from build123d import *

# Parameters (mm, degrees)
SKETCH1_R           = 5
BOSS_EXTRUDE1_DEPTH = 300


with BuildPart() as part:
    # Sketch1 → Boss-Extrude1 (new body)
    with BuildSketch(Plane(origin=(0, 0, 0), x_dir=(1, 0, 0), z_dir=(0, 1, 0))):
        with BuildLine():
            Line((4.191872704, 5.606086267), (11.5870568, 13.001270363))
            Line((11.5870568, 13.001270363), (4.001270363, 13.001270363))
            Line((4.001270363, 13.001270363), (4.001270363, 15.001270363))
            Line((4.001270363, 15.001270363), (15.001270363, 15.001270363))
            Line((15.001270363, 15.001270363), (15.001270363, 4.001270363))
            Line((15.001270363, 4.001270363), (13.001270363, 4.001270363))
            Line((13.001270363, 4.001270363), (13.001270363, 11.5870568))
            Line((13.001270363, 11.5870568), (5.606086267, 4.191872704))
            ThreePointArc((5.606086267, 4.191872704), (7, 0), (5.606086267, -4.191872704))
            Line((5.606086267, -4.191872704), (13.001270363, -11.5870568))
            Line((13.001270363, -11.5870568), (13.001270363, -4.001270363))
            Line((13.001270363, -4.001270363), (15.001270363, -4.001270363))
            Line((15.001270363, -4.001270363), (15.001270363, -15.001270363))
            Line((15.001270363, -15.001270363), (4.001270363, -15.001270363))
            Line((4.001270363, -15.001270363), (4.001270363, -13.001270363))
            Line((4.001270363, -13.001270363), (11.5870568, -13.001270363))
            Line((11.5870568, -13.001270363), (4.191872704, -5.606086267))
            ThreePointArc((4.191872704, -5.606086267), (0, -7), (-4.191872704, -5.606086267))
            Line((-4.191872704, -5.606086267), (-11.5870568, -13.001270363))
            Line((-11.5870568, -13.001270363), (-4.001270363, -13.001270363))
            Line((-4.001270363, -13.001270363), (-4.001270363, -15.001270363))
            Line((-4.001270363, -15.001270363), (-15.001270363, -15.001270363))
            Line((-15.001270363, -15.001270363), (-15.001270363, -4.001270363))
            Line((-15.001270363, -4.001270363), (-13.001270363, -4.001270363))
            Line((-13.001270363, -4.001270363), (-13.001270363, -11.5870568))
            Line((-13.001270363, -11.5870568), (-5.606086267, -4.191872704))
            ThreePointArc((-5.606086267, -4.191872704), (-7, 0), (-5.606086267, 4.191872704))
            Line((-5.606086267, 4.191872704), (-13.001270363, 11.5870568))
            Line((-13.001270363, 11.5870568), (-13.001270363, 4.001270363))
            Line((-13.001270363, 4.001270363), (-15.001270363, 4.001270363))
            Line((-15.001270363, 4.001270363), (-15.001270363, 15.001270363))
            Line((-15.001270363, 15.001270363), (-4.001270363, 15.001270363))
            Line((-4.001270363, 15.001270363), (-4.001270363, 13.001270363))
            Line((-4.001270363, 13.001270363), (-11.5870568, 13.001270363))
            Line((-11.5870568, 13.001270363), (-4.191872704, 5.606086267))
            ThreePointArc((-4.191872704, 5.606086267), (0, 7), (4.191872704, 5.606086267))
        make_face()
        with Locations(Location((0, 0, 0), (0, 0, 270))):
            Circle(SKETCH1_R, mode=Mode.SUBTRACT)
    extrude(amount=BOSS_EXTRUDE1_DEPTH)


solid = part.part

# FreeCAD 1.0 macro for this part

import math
import FreeCAD as App
import Part
import Sketcher

V = App.Vector
Q = App.Units.Quantity

doc = App.newDocument("Part")
body = doc.addObject("PartDesign::Body", "Body")

sketch1 = body.newObject("Sketcher::SketchObject", "Sketch")
sketch1.AttachmentSupport = (doc.getObject("XZ_Plane"), [""])
sketch1.MapMode = "FlatFace"
sketch1.addGeometry(Part.LineSegment(V(11.6, -13, 0), V(4.2, -5.6, 0)), False)
sketch1.addGeometry(Part.ArcOfCircle(Part.Circle(V(0, 0, 0), V(0, 0, 1), 7), math.radians(-127), math.radians(-53)), False)
sketch1.addGeometry(Part.LineSegment(V(-4.2, -5.6, 0), V(-11.6, -13, 0)), False)
sketch1.addGeometry(Part.LineSegment(V(-11.6, -13, 0), V(-4, -13, 0)), False)
sketch1.addGeometry(Part.LineSegment(V(-4, -13, 0), V(-4, -15, 0)), False)
sketch1.addGeometry(Part.LineSegment(V(-4, -15, 0), V(-15, -15, 0)), False)
sketch1.addGeometry(Part.LineSegment(V(-15, -15, 0), V(-15, -4, 0)), False)
sketch1.addGeometry(Part.LineSegment(V(-15, -4, 0), V(-13, -4, 0)), False)
sketch1.addGeometry(Part.LineSegment(V(-13, -4, 0), V(-13, -11.6, 0)), False)
sketch1.addGeometry(Part.LineSegment(V(-13, -11.6, 0), V(-5.6, -4.2, 0)), False)
sketch1.addGeometry(Part.ArcOfCircle(Part.Circle(V(0, 0, 0), V(0, 0, 1), 7), math.radians(143), math.radians(217)), False)
sketch1.addGeometry(Part.LineSegment(V(-5.6, 4.2, 0), V(-13, 11.6, 0)), False)
sketch1.addGeometry(Part.LineSegment(V(-13, 11.6, 0), V(-13, 4, 0)), False)
sketch1.addGeometry(Part.LineSegment(V(-13, 4, 0), V(-15, 4, 0)), False)
sketch1.addGeometry(Part.LineSegment(V(-15, 4, 0), V(-15, 15, 0)), False)
sketch1.addGeometry(Part.LineSegment(V(-15, 15, 0), V(-4, 15, 0)), False)
sketch1.addGeometry(Part.LineSegment(V(-4, 15, 0), V(-4, 13, 0)), False)
sketch1.addGeometry(Part.LineSegment(V(-4, 13, 0), V(-11.6, 13, 0)), False)
sketch1.addGeometry(Part.LineSegment(V(-11.6, 13, 0), V(-4.2, 5.6, 0)), False)
sketch1.addGeometry(Part.ArcOfCircle(Part.Circle(V(0, 0, 0), V(0, 0, 1), 7), math.radians(53), math.radians(127)), False)
sketch1.addGeometry(Part.LineSegment(V(4.2, 5.6, 0), V(11.6, 13, 0)), False)
sketch1.addGeometry(Part.LineSegment(V(11.6, 13, 0), V(4, 13, 0)), False)
sketch1.addGeometry(Part.LineSegment(V(4, 13, 0), V(4, 15, 0)), False)
sketch1.addGeometry(Part.LineSegment(V(4, 15, 0), V(15, 15, 0)), False)
sketch1.addGeometry(Part.LineSegment(V(15, 15, 0), V(15, 4, 0)), False)
sketch1.addGeometry(Part.LineSegment(V(15, 4, 0), V(13, 4, 0)), False)
sketch1.addGeometry(Part.LineSegment(V(13, 4, 0), V(13, 11.6, 0)), False)
sketch1.addGeometry(Part.LineSegment(V(13, 11.6, 0), V(5.6, 4.2, 0)), False)
sketch1.addGeometry(Part.ArcOfCircle(Part.Circle(V(0, 0, 0), V(0, 0, 1), 7), math.radians(-37), math.radians(37)), False)
sketch1.addGeometry(Part.LineSegment(V(5.6, -4.2, 0), V(13, -11.6, 0)), False)
sketch1.addGeometry(Part.LineSegment(V(13, -11.6, 0), V(13, -4, 0)), False)
sketch1.addGeometry(Part.LineSegment(V(13, -4, 0), V(15, -4, 0)), False)
sketch1.addGeometry(Part.LineSegment(V(15, -4, 0), V(15, -15, 0)), False)
sketch1.addGeometry(Part.LineSegment(V(15, -15, 0), V(4, -15, 0)), False)
sketch1.addGeometry(Part.LineSegment(V(4, -15, 0), V(4, -13, 0)), False)
sketch1.addGeometry(Part.LineSegment(V(4, -13, 0), V(11.6, -13, 0)), False)
sketch1.addGeometry(Part.Circle(V(0, 0, 0), V(0, 0, 1), 5), False)
sketch1.addConstraint(Sketcher.Constraint("Coincident", 0, 2, 1, 2))
sketch1.addConstraint(Sketcher.Constraint("Coincident", 1, 1, 2, 1))
sketch1.addConstraint(Sketcher.Constraint("Coincident", 2, 2, 3, 1))
sketch1.addConstraint(Sketcher.Constraint("Coincident", 3, 2, 4, 1))
sketch1.addConstraint(Sketcher.Constraint("Coincident", 4, 2, 5, 1))
sketch1.addConstraint(Sketcher.Constraint("Coincident", 5, 2, 6, 1))
sketch1.addConstraint(Sketcher.Constraint("Coincident", 6, 2, 7, 1))
sketch1.addConstraint(Sketcher.Constraint("Coincident", 7, 2, 8, 1))
sketch1.addConstraint(Sketcher.Constraint("Coincident", 8, 2, 9, 1))
sketch1.addConstraint(Sketcher.Constraint("Coincident", 9, 2, 10, 2))
sketch1.addConstraint(Sketcher.Constraint("Coincident", 10, 1, 11, 1))
sketch1.addConstraint(Sketcher.Constraint("Coincident", 11, 2, 12, 1))
sketch1.addConstraint(Sketcher.Constraint("Coincident", 12, 2, 13, 1))
sketch1.addConstraint(Sketcher.Constraint("Coincident", 13, 2, 14, 1))
sketch1.addConstraint(Sketcher.Constraint("Coincident", 14, 2, 15, 1))
sketch1.addConstraint(Sketcher.Constraint("Coincident", 15, 2, 16, 1))
sketch1.addConstraint(Sketcher.Constraint("Coincident", 16, 2, 17, 1))
sketch1.addConstraint(Sketcher.Constraint("Coincident", 17, 2, 18, 1))
sketch1.addConstraint(Sketcher.Constraint("Coincident", 18, 2, 19, 2))
sketch1.addConstraint(Sketcher.Constraint("Coincident", 19, 1, 20, 1))
sketch1.addConstraint(Sketcher.Constraint("Coincident", 20, 2, 21, 1))
sketch1.addConstraint(Sketcher.Constraint("Coincident", 21, 2, 22, 1))
sketch1.addConstraint(Sketcher.Constraint("Coincident", 22, 2, 23, 1))
sketch1.addConstraint(Sketcher.Constraint("Coincident", 23, 2, 24, 1))
sketch1.addConstraint(Sketcher.Constraint("Coincident", 24, 2, 25, 1))
sketch1.addConstraint(Sketcher.Constraint("Coincident", 25, 2, 26, 1))
sketch1.addConstraint(Sketcher.Constraint("Coincident", 26, 2, 27, 1))
sketch1.addConstraint(Sketcher.Constraint("Coincident", 27, 2, 28, 2))
sketch1.addConstraint(Sketcher.Constraint("Coincident", 28, 1, 29, 1))
sketch1.addConstraint(Sketcher.Constraint("Coincident", 29, 2, 30, 1))
sketch1.addConstraint(Sketcher.Constraint("Coincident", 30, 2, 31, 1))
sketch1.addConstraint(Sketcher.Constraint("Coincident", 31, 2, 32, 1))
sketch1.addConstraint(Sketcher.Constraint("Coincident", 32, 2, 33, 1))
sketch1.addConstraint(Sketcher.Constraint("Coincident", 33, 2, 34, 1))
sketch1.addConstraint(Sketcher.Constraint("Coincident", 34, 2, 35, 1))
sketch1.addConstraint(Sketcher.Constraint("Coincident", 35, 2, 0, 1))
sketch1.addConstraint(Sketcher.Constraint("Horizontal", 3))
sketch1.addConstraint(Sketcher.Constraint("Vertical", 4))
sketch1.addConstraint(Sketcher.Constraint("Horizontal", 5))
sketch1.addConstraint(Sketcher.Constraint("Vertical", 6))
sketch1.addConstraint(Sketcher.Constraint("Horizontal", 7))
sketch1.addConstraint(Sketcher.Constraint("Vertical", 8))
sketch1.addConstraint(Sketcher.Constraint("Vertical", 12))
sketch1.addConstraint(Sketcher.Constraint("Horizontal", 13))
sketch1.addConstraint(Sketcher.Constraint("Vertical", 14))
sketch1.addConstraint(Sketcher.Constraint("Horizontal", 15))
sketch1.addConstraint(Sketcher.Constraint("Vertical", 16))
sketch1.addConstraint(Sketcher.Constraint("Horizontal", 17))
sketch1.addConstraint(Sketcher.Constraint("Horizontal", 21))
sketch1.addConstraint(Sketcher.Constraint("Vertical", 22))
sketch1.addConstraint(Sketcher.Constraint("Horizontal", 23))
sketch1.addConstraint(Sketcher.Constraint("Vertical", 24))
sketch1.addConstraint(Sketcher.Constraint("Horizontal", 25))
sketch1.addConstraint(Sketcher.Constraint("Vertical", 26))
sketch1.addConstraint(Sketcher.Constraint("Vertical", 30))
sketch1.addConstraint(Sketcher.Constraint("Horizontal", 31))
sketch1.addConstraint(Sketcher.Constraint("Vertical", 32))
sketch1.addConstraint(Sketcher.Constraint("Horizontal", 33))
sketch1.addConstraint(Sketcher.Constraint("Vertical", 34))
sketch1.addConstraint(Sketcher.Constraint("Horizontal", 35))
sketch1.addConstraint(Sketcher.Constraint("Coincident", 1, 3, -1, 1))
sketch1.addConstraint(Sketcher.Constraint("Coincident", 10, 3, -1, 1))
sketch1.addConstraint(Sketcher.Constraint("Coincident", 19, 3, -1, 1))
sketch1.addConstraint(Sketcher.Constraint("Coincident", 28, 3, -1, 1))
sketch1.addConstraint(Sketcher.Constraint("Coincident", 36, 3, -1, 1))
sketch1.addConstraint(Sketcher.Constraint("Equal", 1, 10))
sketch1.addConstraint(Sketcher.Constraint("Equal", 10, 19))
sketch1.addConstraint(Sketcher.Constraint("Equal", 19, 28))
sketch1.addConstraint(Sketcher.Constraint("Symmetric", 2, 2, 20, 2, -1, 1))
sketch1.addConstraint(Sketcher.Constraint("Symmetric", 4, 2, 22, 2, -1, 1))
sketch1.addConstraint(Sketcher.Constraint("Symmetric", 6, 2, 24, 2, -1, 1))
sketch1.addConstraint(Sketcher.Constraint("Symmetric", 8, 2, 26, 2, -1, 1))
sketch1.addConstraint(Sketcher.Constraint("Symmetric", 11, 2, 29, 2, -1, 1))
sketch1.addConstraint(Sketcher.Constraint("Symmetric", 13, 2, 31, 2, -1, 1))
sketch1.addConstraint(Sketcher.Constraint("Symmetric", 15, 2, 33, 2, -1, 1))
sketch1.addConstraint(Sketcher.Constraint("Symmetric", 17, 2, 35, 2, -1, 1))
sketch1.addConstraint(Sketcher.Constraint("Symmetric", 17, 2, 20, 2, -2))
sketch1.addConstraint(Sketcher.Constraint("Symmetric", 15, 2, 22, 2, -2))
sketch1.addConstraint(Sketcher.Constraint("Symmetric", 13, 2, 24, 2, -2))
sketch1.addConstraint(Sketcher.Constraint("Symmetric", 11, 2, 26, 2, -2))
sketch1.addConstraint(Sketcher.Constraint("Perpendicular", 0, 2))
sketch1.addConstraint(Sketcher.Constraint("Parallel", 2, 9))
sketch1.addConstraint(Sketcher.Constraint("Perpendicular", 9, 11))
sketch1.addConstraint(Sketcher.Constraint("Parallel", 11, 18))
sketch1.addConstraint(Sketcher.Constraint("Perpendicular", 18, 20))
sketch1.addConstraint(Sketcher.Constraint("Parallel", 20, 27))
sketch1.addConstraint(Sketcher.Constraint("Perpendicular", 27, 29))
sketch1.addConstraint(Sketcher.Constraint("Horizontal", 0, 2, 1, 1))
sketch1.addConstraint(Sketcher.Constraint("Equal", 31, 4))
sketch1.addConstraint(Sketcher.Constraint("Equal", 33, 6))
sketch1.addConstraint(Sketcher.Constraint("Equal", 35, 8))
sketch1.addConstraint(Sketcher.Constraint("Equal", 2, 9))
sketch1.addConstraint(Sketcher.Constraint("Diameter", 36, Q("10 mm")))
sketch1.addConstraint(Sketcher.Constraint("Radius", 1, Q("7 mm")))
sketch1.addConstraint(Sketcher.Constraint("DistanceX", 5, 2, 5, 1, Q("11 mm")))
sketch1.addConstraint(Sketcher.Constraint("DistanceX", 7, 1, 7, 2, Q("2 mm")))
sketch1.addConstraint(Sketcher.Constraint("Distance", 0, Q("10.45837 mm")))
sketch1.addConstraint(Sketcher.Constraint("DistanceX", 3, 1, 3, 2, Q("7.585786 mm")))
pad1 = body.newObject("PartDesign::Pad", "Pad")
pad1.Profile = sketch1
pad1.Length = 300
pad1.Reversed = True

doc.recompute()
